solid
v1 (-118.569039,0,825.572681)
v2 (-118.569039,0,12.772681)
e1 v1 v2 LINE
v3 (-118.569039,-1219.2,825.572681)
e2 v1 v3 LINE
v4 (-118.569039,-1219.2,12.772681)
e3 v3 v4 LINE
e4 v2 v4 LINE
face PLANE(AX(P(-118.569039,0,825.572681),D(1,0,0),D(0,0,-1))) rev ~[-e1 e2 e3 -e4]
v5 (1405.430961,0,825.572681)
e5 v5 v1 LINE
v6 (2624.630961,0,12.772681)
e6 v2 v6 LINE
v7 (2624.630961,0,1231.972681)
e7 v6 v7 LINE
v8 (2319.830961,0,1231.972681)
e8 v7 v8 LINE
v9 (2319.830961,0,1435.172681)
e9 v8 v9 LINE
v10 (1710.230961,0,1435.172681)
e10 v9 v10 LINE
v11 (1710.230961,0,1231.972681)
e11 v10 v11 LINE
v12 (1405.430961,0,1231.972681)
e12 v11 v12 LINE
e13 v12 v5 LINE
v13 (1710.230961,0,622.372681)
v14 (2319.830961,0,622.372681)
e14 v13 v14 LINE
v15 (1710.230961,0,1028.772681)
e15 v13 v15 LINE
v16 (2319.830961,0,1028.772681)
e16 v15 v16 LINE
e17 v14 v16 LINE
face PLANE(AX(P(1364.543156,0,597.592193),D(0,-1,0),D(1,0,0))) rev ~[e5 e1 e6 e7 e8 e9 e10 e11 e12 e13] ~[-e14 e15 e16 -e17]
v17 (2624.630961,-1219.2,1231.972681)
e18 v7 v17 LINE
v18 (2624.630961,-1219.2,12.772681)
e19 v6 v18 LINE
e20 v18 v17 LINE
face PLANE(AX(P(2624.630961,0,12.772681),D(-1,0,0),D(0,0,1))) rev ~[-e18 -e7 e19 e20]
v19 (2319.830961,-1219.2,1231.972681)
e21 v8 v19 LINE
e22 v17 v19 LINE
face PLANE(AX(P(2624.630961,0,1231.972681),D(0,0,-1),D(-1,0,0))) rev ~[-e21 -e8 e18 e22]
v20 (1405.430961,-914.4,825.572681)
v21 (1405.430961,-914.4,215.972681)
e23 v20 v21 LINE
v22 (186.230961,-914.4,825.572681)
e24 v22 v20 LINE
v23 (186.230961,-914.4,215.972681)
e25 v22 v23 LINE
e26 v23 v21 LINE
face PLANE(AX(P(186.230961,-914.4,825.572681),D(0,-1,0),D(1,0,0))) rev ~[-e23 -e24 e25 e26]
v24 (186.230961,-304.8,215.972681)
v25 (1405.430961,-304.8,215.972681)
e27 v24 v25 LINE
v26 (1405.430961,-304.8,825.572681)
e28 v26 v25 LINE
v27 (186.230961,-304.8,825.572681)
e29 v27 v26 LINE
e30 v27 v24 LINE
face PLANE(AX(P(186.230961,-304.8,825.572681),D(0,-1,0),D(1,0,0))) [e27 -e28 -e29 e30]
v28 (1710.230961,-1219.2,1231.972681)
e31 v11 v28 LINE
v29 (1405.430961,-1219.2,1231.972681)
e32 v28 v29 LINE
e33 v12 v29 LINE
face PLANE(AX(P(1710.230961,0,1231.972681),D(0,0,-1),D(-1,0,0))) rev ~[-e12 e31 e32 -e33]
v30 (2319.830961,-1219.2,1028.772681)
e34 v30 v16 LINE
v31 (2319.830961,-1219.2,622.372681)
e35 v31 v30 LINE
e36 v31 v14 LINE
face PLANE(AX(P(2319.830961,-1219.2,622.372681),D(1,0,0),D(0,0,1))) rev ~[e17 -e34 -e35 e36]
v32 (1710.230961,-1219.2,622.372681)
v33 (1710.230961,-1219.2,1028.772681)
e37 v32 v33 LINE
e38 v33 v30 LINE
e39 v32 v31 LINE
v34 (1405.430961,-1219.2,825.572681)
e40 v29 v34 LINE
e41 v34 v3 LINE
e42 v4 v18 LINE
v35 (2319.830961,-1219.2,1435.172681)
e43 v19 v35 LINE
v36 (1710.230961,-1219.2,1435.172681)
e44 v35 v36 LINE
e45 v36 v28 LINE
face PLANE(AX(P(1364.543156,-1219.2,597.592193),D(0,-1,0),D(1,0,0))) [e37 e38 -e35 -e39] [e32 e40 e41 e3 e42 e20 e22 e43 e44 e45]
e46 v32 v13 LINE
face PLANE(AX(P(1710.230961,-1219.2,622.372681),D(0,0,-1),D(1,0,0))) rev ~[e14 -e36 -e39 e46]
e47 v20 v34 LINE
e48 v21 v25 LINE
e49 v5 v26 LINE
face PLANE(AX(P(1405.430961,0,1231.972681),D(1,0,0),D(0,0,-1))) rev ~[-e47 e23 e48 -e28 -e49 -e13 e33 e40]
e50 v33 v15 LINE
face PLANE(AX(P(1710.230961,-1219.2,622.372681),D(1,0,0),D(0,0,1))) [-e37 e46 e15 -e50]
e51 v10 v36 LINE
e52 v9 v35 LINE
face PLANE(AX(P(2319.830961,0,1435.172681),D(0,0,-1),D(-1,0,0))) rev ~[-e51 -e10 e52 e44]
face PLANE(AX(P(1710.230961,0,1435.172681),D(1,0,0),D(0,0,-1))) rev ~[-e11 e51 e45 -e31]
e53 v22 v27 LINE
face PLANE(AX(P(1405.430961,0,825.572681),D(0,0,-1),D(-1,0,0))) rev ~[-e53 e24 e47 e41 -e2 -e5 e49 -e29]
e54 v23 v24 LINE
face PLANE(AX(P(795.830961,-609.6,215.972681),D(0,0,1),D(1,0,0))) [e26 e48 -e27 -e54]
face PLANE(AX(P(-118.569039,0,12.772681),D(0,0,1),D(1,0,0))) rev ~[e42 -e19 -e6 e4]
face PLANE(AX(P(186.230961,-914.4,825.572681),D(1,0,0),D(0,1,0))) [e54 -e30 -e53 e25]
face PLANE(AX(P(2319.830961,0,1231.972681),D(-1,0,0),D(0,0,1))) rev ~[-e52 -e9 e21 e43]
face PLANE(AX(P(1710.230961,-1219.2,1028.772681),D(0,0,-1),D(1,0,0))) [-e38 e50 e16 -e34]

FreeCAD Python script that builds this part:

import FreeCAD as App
import Part
import Sketcher
Q = App.Units.Quantity

doc = App.newDocument("Part")
params = doc.addObject("Spreadsheet::Sheet", "Params")
for row, (alias, value) in enumerate([
    ("sketch1_width", "108 in"),
    ("sketch1_width2", "12 in"),
    ("sketch1_width3", "24 in"),
    ("sketch1_height", "32 in"),
    ("sketch1_height2", "48 in"),
    ("pad1_length", "48 in"),
    ("sketch2_width", "24 in"),
    ("sketch2_height", "16 in"),
    ("sketch3_width", "48 in"),
    ("sketch3_height", "24 in"),
    ("pocket2_length", "24 in"),
], start=1):
    params.set(f"A{row}", alias)
    params.set(f"B{row}", "=" + value)
    params.setAlias(f"B{row}", alias)

body = doc.addObject("PartDesign::Body", "Body")

sketch1 = body.newObject("Sketcher::SketchObject", "Sketch")
sketch1.AttachmentSupport = (doc.getObject("XZ_Plane"), [""])
sketch1.MapMode = "FlatFace"
sketch1.addGeometry([
    Part.LineSegment(App.Vector(-119, 826, 0), App.Vector(-119, 13, 0)),
    Part.LineSegment(App.Vector(-119, 13, 0), App.Vector(2625, 13, 0)),
    Part.LineSegment(App.Vector(2625, 13, 0), App.Vector(2625, 1232, 0)),
    Part.LineSegment(App.Vector(2625, 1232, 0), App.Vector(2320, 1232, 0)),
    Part.LineSegment(App.Vector(2320, 1232, 0), App.Vector(2320, 1435, 0)),
    Part.LineSegment(App.Vector(2320, 1435, 0), App.Vector(1710, 1435, 0)),
    Part.LineSegment(App.Vector(1710, 1435, 0), App.Vector(1710, 1232, 0)),
    Part.LineSegment(App.Vector(1710, 1232, 0), App.Vector(1405, 1232, 0)),
    Part.LineSegment(App.Vector(1405, 1232, 0), App.Vector(1405, 826, 0)),
    Part.LineSegment(App.Vector(1405, 826, 0), App.Vector(-119, 826, 0)),
], False)
sketch1.addConstraint([
    Sketcher.Constraint("Coincident", 0, 2, 1, 1),
    Sketcher.Constraint("Coincident", 1, 2, 2, 1),
    Sketcher.Constraint("Coincident", 2, 2, 3, 1),
    Sketcher.Constraint("Coincident", 3, 2, 4, 1),
    Sketcher.Constraint("Coincident", 4, 2, 5, 1),
    Sketcher.Constraint("Coincident", 5, 2, 6, 1),
    Sketcher.Constraint("Coincident", 6, 2, 7, 1),
    Sketcher.Constraint("Coincident", 7, 2, 8, 1),
    Sketcher.Constraint("Coincident", 8, 2, 9, 1),
    Sketcher.Constraint("Coincident", 9, 2, 0, 1),
    Sketcher.Constraint("Vertical", 0),
    Sketcher.Constraint("Horizontal", 1),
    Sketcher.Constraint("Vertical", 2),
    Sketcher.Constraint("Horizontal", 3),
    Sketcher.Constraint("Vertical", 4),
    Sketcher.Constraint("Horizontal", 5),
    Sketcher.Constraint("Vertical", 6),
    Sketcher.Constraint("Horizontal", 7),
    Sketcher.Constraint("Vertical", 8),
    Sketcher.Constraint("Horizontal", 9),
    Sketcher.Constraint("Horizontal", 3, 2, 6, 2),
    Sketcher.Constraint("Equal", 3, 7),
    Sketcher.Constraint("DistanceX", 1, 1, 1, 2, Q("108 in")),
    Sketcher.Constraint("DistanceX", 3, 2, 3, 1, Q("12 in")),
    Sketcher.Constraint("DistanceX", 5, 2, 5, 1, Q("24 in")),
    Sketcher.Constraint("DistanceY", 0, 2, 0, 1, Q("32 in")),
    Sketcher.Constraint("DistanceY", 2, 1, 2, 2, Q("48 in")),
    Sketcher.Constraint("DistanceY", 4, 1, 4, 2, Q("8 in")),
    Sketcher.Constraint("DistanceX", 0, 2, -1, 1, Q("118.569039 mm")),
    Sketcher.Constraint("DistanceY", -1, 1, 0, 2, Q("12.772681 mm")),
])
sketch1.setExpression("Constraints[22]", "Params.sketch1_width")
sketch1.setExpression("Constraints[23]", "Params.sketch1_width2")
sketch1.setExpression("Constraints[24]", "Params.sketch1_width3")
sketch1.setExpression("Constraints[25]", "Params.sketch1_height")
sketch1.setExpression("Constraints[26]", "Params.sketch1_height2")
pad1 = body.newObject("PartDesign::Pad", "Pad")
pad1.Profile = sketch1
pad1.setExpression("Length", "Params.pad1_length")

sketch2 = body.newObject("Sketcher::SketchObject", "Sketch001")
sketch2.AttachmentSupport = (doc.getObject("XZ_Plane"), [""])
sketch2.MapMode = "FlatFace"
sketch2.AttachmentOffset = App.Placement(App.Vector(0, 0, 48 * 25.4), App.Rotation())
sketch2.addGeometry([
    Part.LineSegment(App.Vector(1710, 1029, 0), App.Vector(1710, 622, 0)),
    Part.LineSegment(App.Vector(1710, 622, 0), App.Vector(2320, 622, 0)),
    Part.LineSegment(App.Vector(2320, 622, 0), App.Vector(2320, 1029, 0)),
    Part.LineSegment(App.Vector(2320, 1029, 0), App.Vector(1710, 1029, 0)),
], False)
sketch2.addConstraint([
    Sketcher.Constraint("Coincident", 0, 2, 1, 1),
    Sketcher.Constraint("Coincident", 1, 2, 2, 1),
    Sketcher.Constraint("Coincident", 2, 2, 3, 1),
    Sketcher.Constraint("Coincident", 3, 2, 0, 1),
    Sketcher.Constraint("Vertical", 0),
    Sketcher.Constraint("Horizontal", 1),
    Sketcher.Constraint("Vertical", 2),
    Sketcher.Constraint("Horizontal", 3),
    Sketcher.Constraint("DistanceX", 1, 1, 1, 2, Q("24 in")),
    Sketcher.Constraint("DistanceY", 0, 2, 0, 1, Q("16 in")),
    Sketcher.Constraint("DistanceX", -1, 1, 0, 2, Q("1710.230961 mm")),
    Sketcher.Constraint("DistanceY", -1, 1, 0, 2, Q("622.372681 mm")),
])
sketch2.setExpression("Constraints[8]", "Params.sketch2_width")
sketch2.setExpression("Constraints[9]", "Params.sketch2_height")
pocket1 = body.newObject("PartDesign::Pocket", "Pocket")
pocket1.Profile = sketch2
pocket1.Type = "ThroughAll"

sketch3 = body.newObject("Sketcher::SketchObject", "Sketch002")
sketch3.AttachmentSupport = (doc.getObject("XY_Plane"), [""])
sketch3.MapMode = "FlatFace"
sketch3.AttachmentOffset = App.Placement(App.Vector(0, 0, 825.572681), App.Rotation())
sketch3.addGeometry([
    Part.LineSegment(App.Vector(186, -305, 0), App.Vector(186, -914, 0)),
    Part.LineSegment(App.Vector(186, -914, 0), App.Vector(1405, -914, 0)),
    Part.LineSegment(App.Vector(1405, -914, 0), App.Vector(1405, -305, 0)),
    Part.LineSegment(App.Vector(1405, -305, 0), App.Vector(186, -305, 0)),
], False)
sketch3.addConstraint([
    Sketcher.Constraint("Coincident", 0, 2, 1, 1),
    Sketcher.Constraint("Coincident", 1, 2, 2, 1),
    Sketcher.Constraint("Coincident", 2, 2, 3, 1),
    Sketcher.Constraint("Coincident", 3, 2, 0, 1),
    Sketcher.Constraint("Vertical", 0),
    Sketcher.Constraint("Horizontal", 1),
    Sketcher.Constraint("Vertical", 2),
    Sketcher.Constraint("Horizontal", 3),
    Sketcher.Constraint("DistanceX", 1, 1, 1, 2, Q("48 in")),
    Sketcher.Constraint("DistanceY", 0, 2, 0, 1, Q("24 in")),
    Sketcher.Constraint("DistanceY", 0, 2, -1, 1, Q("36 in")),
    Sketcher.Constraint("DistanceX", -1, 1, 0, 2, Q("186.230961 mm")),
])
sketch3.setExpression("Constraints[8]", "Params.sketch3_width")
sketch3.setExpression("Constraints[9]", "Params.sketch3_height")
pocket2 = body.newObject("PartDesign::Pocket", "Pocket001")
pocket2.Profile = sketch3
pocket2.setExpression("Length", "Params.pocket2_length")

doc.recompute()
